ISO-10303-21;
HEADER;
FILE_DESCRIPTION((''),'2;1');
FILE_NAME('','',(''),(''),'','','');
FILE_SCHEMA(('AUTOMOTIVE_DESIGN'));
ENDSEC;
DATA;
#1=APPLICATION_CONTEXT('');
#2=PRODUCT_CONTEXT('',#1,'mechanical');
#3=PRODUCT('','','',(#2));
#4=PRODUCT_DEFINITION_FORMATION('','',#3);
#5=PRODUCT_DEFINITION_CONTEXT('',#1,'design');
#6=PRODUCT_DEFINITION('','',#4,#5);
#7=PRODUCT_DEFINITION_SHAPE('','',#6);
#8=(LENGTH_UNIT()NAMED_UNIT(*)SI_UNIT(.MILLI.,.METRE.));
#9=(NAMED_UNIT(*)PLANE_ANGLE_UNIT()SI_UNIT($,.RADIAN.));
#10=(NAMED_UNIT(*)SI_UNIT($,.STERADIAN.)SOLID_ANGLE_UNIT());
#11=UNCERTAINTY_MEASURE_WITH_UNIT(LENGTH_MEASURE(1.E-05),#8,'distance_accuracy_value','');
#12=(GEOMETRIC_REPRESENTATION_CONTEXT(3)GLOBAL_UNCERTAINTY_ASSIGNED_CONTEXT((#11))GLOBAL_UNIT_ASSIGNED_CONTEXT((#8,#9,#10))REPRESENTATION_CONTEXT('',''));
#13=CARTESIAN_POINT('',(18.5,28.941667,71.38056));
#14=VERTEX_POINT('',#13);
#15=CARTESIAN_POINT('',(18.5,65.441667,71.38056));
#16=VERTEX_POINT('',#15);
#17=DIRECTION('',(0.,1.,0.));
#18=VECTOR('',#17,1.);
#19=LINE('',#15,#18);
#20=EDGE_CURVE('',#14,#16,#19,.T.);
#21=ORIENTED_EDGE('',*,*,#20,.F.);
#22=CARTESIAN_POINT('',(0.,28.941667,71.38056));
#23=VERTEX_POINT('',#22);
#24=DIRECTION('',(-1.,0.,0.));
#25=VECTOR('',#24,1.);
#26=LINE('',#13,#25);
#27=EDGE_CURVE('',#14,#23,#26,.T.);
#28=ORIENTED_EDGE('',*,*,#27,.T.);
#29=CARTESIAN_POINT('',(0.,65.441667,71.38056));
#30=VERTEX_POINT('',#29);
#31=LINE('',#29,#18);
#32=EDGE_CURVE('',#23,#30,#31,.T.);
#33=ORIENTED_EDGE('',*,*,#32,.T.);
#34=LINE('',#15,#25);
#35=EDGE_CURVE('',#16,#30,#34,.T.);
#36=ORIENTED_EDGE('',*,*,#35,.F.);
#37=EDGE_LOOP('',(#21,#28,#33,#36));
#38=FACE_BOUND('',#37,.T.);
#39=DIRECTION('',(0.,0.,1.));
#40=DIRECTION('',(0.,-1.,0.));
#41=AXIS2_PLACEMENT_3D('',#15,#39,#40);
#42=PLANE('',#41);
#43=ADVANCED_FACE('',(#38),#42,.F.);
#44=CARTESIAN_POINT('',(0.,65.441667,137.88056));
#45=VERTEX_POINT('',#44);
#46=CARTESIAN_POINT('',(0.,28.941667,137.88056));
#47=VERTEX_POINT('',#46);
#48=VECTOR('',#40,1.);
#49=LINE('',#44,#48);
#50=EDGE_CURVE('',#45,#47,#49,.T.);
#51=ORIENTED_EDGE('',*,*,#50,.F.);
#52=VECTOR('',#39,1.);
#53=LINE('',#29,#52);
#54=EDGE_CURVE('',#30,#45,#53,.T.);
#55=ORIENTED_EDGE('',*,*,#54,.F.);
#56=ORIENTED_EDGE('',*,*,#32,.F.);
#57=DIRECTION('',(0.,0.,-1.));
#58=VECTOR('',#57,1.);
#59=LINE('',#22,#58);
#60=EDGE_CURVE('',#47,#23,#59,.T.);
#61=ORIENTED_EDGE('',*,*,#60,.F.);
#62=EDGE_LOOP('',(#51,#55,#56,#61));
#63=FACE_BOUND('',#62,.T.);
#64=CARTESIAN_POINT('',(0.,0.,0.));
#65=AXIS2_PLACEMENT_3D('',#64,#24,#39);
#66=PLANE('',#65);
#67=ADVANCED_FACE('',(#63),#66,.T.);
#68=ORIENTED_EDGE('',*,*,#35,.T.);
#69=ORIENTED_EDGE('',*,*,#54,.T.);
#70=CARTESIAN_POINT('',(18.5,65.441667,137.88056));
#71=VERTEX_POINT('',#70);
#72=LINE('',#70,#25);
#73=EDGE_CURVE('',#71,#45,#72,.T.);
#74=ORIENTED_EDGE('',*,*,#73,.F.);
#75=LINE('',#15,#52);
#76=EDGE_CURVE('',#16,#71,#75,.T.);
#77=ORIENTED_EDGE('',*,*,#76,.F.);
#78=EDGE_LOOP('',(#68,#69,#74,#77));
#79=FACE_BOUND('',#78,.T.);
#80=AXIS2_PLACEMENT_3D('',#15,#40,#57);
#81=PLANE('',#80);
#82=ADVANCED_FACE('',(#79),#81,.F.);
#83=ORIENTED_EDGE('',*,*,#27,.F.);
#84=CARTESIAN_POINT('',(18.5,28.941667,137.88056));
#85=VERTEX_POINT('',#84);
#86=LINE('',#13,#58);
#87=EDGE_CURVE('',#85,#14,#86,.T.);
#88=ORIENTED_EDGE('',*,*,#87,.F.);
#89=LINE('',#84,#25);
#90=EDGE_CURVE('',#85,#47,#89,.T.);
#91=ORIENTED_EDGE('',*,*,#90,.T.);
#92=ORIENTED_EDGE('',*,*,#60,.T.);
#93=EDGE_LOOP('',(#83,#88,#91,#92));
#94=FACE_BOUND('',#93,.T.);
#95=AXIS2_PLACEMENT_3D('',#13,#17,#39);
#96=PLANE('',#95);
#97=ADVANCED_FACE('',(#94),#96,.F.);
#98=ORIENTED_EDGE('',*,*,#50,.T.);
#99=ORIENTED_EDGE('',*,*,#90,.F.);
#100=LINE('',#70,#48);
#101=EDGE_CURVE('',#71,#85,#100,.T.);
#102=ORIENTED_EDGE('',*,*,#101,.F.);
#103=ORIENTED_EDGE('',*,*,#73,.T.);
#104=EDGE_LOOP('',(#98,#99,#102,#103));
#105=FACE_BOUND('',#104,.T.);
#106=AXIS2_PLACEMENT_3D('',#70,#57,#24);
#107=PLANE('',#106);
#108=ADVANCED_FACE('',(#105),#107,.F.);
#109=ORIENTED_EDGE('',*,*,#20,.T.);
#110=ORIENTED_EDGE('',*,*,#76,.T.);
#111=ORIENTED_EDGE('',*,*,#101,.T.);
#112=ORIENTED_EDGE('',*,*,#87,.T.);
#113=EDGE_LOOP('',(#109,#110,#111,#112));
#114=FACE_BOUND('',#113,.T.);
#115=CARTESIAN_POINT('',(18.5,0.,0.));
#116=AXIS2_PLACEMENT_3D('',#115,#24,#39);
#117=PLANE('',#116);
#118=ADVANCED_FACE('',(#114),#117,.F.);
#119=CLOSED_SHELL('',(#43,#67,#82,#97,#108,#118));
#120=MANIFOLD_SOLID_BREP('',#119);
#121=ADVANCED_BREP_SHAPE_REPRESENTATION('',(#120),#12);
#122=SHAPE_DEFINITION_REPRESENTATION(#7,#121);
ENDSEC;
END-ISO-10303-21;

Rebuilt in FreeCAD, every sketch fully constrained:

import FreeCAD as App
import Part
import Sketcher
from FreeCAD import Vector
Q = App.Units.Quantity

doc = App.newDocument("Part")
body = doc.addObject("PartDesign::Body", "Body")

# Sketch on YZ plane
sketch1 = doc.addObject("Sketcher::SketchObject", "Sketch")
body.addObject(sketch1)
sketch1.AttachmentSupport = (doc.YZ_Plane, [""])
sketch1.MapMode = "FlatFace"
sketch1.addGeometry(Part.LineSegment(Vector(65, 138, 0), Vector(29, 138, 0)), False)
sketch1.addGeometry(Part.LineSegment(Vector(29, 138, 0), Vector(29, 71, 0)), False)
sketch1.addGeometry(Part.LineSegment(Vector(29, 71, 0), Vector(65, 71, 0)), False)
sketch1.addGeometry(Part.LineSegment(Vector(65, 71, 0), Vector(65, 138, 0)), False)
sketch1.addConstraint(Sketcher.Constraint("Coincident", 0, 2, 1, 1))
sketch1.addConstraint(Sketcher.Constraint("Coincident", 1, 2, 2, 1))
sketch1.addConstraint(Sketcher.Constraint("Coincident", 2, 2, 3, 1))
sketch1.addConstraint(Sketcher.Constraint("Coincident", 3, 2, 0, 1))
sketch1.addConstraint(Sketcher.Constraint("Horizontal", 0))
sketch1.addConstraint(Sketcher.Constraint("Vertical", 1))
sketch1.addConstraint(Sketcher.Constraint("Horizontal", 2))
sketch1.addConstraint(Sketcher.Constraint("Vertical", 3))
sketch1.addConstraint(Sketcher.Constraint("DistanceX", 0, 2, 0, 1, Q("36.5 mm")))
sketch1.addConstraint(Sketcher.Constraint("DistanceY", 1, 2, 1, 1, Q("66.5 mm")))
sketch1.addConstraint(Sketcher.Constraint("DistanceY", -1, 1, 0, 2, Q("137.88056 mm")))
sketch1.addConstraint(Sketcher.Constraint("DistanceX", -1, 1, 0, 2, Q("28.941667 mm")))
pad1 = doc.addObject("PartDesign::Pad", "Pad")
body.addObject(pad1)
pad1.Profile = sketch1
pad1.Length = 18.5

doc.recompute()
